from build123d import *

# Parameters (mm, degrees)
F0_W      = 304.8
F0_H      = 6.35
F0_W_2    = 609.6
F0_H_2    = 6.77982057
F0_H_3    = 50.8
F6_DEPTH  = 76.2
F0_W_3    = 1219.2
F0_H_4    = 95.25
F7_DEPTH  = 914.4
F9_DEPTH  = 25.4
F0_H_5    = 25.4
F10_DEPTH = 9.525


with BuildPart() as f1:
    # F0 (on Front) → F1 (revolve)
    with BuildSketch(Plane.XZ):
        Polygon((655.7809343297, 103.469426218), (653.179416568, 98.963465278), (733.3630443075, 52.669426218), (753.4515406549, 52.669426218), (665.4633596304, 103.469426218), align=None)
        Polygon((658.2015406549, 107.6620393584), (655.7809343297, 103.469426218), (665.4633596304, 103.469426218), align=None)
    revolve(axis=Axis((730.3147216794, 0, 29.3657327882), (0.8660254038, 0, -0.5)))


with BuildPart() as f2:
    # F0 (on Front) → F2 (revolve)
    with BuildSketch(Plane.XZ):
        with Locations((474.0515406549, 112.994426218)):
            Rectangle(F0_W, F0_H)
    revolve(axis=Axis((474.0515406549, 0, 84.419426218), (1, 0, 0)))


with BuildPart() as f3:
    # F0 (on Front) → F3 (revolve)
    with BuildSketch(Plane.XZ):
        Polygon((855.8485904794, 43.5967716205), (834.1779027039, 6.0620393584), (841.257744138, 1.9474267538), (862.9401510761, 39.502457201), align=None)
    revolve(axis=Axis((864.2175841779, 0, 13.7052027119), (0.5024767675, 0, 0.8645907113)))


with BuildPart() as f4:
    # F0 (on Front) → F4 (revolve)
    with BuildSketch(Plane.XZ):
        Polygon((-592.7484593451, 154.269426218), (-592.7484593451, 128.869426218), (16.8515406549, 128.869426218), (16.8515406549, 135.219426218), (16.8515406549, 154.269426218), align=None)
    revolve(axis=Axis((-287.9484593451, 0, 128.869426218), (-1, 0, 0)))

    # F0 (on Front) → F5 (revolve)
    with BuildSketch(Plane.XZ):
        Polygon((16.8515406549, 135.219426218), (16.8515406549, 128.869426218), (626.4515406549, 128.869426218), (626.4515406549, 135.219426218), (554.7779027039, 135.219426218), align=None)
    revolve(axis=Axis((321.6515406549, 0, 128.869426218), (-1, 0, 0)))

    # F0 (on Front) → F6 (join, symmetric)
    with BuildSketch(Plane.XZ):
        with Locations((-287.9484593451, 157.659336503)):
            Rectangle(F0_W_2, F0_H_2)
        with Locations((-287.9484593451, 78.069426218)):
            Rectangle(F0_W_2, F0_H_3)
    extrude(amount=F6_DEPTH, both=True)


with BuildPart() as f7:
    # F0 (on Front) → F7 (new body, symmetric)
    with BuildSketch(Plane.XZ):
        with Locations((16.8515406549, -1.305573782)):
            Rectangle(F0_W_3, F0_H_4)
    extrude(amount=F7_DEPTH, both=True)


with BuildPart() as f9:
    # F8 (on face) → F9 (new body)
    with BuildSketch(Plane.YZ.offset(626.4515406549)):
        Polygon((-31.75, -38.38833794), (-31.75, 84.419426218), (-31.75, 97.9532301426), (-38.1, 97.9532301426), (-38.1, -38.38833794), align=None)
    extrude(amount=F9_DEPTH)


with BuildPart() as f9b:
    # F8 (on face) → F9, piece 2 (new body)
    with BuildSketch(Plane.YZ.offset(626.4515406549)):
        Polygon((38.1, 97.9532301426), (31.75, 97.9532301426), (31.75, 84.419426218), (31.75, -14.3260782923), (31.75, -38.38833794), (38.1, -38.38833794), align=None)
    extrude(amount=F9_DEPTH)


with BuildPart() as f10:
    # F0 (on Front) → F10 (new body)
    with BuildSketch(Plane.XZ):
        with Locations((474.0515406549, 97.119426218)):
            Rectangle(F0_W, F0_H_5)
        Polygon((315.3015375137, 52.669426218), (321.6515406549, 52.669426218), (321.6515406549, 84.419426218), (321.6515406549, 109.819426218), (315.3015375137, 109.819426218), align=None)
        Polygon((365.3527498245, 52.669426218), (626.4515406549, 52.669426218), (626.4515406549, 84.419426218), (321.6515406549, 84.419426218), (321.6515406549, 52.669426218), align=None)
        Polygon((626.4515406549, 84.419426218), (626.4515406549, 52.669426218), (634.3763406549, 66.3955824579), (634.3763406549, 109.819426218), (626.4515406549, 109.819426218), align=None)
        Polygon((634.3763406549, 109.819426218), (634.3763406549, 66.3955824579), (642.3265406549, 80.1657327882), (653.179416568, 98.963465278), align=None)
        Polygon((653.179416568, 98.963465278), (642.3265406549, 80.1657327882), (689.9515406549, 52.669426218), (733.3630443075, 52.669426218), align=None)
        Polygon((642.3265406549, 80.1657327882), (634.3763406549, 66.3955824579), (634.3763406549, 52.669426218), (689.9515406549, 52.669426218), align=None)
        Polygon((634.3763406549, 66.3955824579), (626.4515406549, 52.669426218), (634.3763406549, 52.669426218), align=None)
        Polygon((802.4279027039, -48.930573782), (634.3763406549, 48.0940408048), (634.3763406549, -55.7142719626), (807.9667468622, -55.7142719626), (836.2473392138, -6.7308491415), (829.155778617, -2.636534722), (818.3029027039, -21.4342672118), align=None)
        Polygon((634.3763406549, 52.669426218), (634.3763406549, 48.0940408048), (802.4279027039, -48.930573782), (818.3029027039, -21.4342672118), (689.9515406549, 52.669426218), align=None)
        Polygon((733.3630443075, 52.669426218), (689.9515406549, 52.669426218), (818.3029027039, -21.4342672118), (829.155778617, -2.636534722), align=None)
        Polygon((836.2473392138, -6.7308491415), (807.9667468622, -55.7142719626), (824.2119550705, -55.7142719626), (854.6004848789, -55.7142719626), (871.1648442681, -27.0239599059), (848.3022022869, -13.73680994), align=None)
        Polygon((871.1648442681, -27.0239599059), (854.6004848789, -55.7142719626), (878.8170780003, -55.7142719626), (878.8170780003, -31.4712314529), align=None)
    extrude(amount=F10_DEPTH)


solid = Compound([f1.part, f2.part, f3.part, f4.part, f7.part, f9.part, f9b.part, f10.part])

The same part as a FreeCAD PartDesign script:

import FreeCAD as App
import Part
import Sketcher
Q = App.Units.Quantity


def add_polygon(sketch, points):
    """Adds a closed chain of lines whose ends are joined by coincident constraints."""
    first, n = sketch.GeometryCount, len(points)
    for a, b in zip(points, points[1:] + points[:1]):
        sketch.addGeometry(Part.LineSegment(App.Vector(*a, 0), App.Vector(*b, 0)), False)
    for i in range(n):
        sketch.addConstraint(Sketcher.Constraint("Coincident", first + i, 2, first + (i + 1) % n, 1))

doc = App.newDocument("Part")
params = doc.addObject("Spreadsheet::Sheet", "Params")
for row, (alias, value) in enumerate([
    ("sketch1_length", "4 in"),
    ("sketch1_width", "3.75 in"),
    ("revolution_angle", "360 deg"),
    ("sketch2_width", "12 in"),
    ("sketch2_height", "0.25 in"),
    ("revolution2_angle", "360 deg"),
    ("revolution3_angle", "360 deg"),
    ("sketch4_width", "24 in"),
    ("sketch4_height", "1 in"),
    ("revolution4_angle", "360 deg"),
    ("sketch5_width", "24 in"),
    ("sketch5_height", "0.25 in"),
    ("revolution5_angle", "360 deg"),
    ("sketch6_width", "24 in"),
    ("sketch6_height", "2 in"),
    ("pad1_length", "6 in"),
    ("sketch7_width", "48 in"),
    ("sketch7_height", "3.75 in"),
    ("pad2_length", "72 in"),
    ("sketch8_width", "0.25 in"),
    ("pad3_length", "1 in"),
    ("sketch9_width", "0.25 in"),
    ("pad4_length", "1 in"),
    ("sketch10_height", "2.25 in"),
    ("sketch10_width", "12.5620001 in"),
    ("pad5_length", "0.375 in"),
], start=1):
    params.set(f"A{row}", alias)
    params.set(f"B{row}", "=" + value)
    params.setAlias(f"B{row}", alias)

body = doc.addObject("PartDesign::Body", "Body")

# Sketch on XZ plane
sketch1 = doc.addObject("Sketcher::SketchObject", "Sketch")
body.addObject(sketch1)
sketch1.AttachmentSupport = (doc.XZ_Plane, [""])
sketch1.MapMode = "FlatFace"
add_polygon(sketch1, [(655.780934, 103.469426), (653.179417, 98.963465), (733.363044, 52.669426), (753.451541, 52.669426), (665.46336, 103.469426), (658.201541, 107.662039)])  # lines 0-5
sketch1.addGeometry(Part.LineSegment(App.Vector(642.326541, 80.165733, 0), App.Vector(737.576541, 25.17312, 0)), True)  # axis
sketch1.addConstraint(Sketcher.Constraint("Horizontal", 2))
sketch1.addConstraint(Sketcher.Constraint("Perpendicular", 0, 1))
sketch1.addConstraint(Sketcher.Constraint("Parallel", 1, 3))
sketch1.addConstraint(Sketcher.Constraint("Parallel", 3, 4))
sketch1.addConstraint(Sketcher.Constraint("Perpendicular", 4, 5))
sketch1.addConstraint(Sketcher.Constraint("Perpendicular", 5, 6))
sketch1.addConstraint(Sketcher.Constraint("Horizontal", 3, 2, 5, 2))
sketch1.addConstraint(Sketcher.Constraint("Distance", 3, Q("4 in")))
sketch1.addConstraint(Sketcher.Constraint("Angle", 0, Q("-120 deg")))
sketch1.addConstraint(Sketcher.Constraint("DistanceX", 4, 2, 2, 2, Q("3.75 in")))
sketch1.addConstraint(Sketcher.Constraint("DistanceX", 6, 1, 6, 2, Q("3.75 in")))
sketch1.addConstraint(Sketcher.Constraint("DistanceX", 6, 1, 4, 2, Q("0.625 in")))
sketch1.addConstraint(Sketcher.Constraint("Distance", 1, Q("3.6451999 in")))
sketch1.addConstraint(Sketcher.Constraint("DistanceX", -1, 1, 2, 2, 753.451541))
sketch1.addConstraint(Sketcher.Constraint("DistanceY", -1, 1, 4, 2, 107.662039))
sketch1.addConstraint(Sketcher.Constraint("DistanceY", -1, 1, 6, 2, 25.17312))
sketch1.setExpression("Constraints[13]", "Params.sketch1_length")
sketch1.setExpression("Constraints[16]", "Params.sketch1_width")
revolution = doc.addObject("PartDesign::Revolution", "Revolution")
body.addObject(revolution)
revolution.Profile = sketch1
revolution.ReferenceAxis = (sketch1, ["Axis0"])
revolution.setExpression("Angle", "Params.revolution_angle")
body2 = doc.addObject("PartDesign::Body", "Body001")

# Sketch on XZ plane
sketch2 = doc.addObject("Sketcher::SketchObject", "Sketch001")
body2.addObject(sketch2)
sketch2.AttachmentSupport = (doc.getObject("XZ_Plane001"), [""])
sketch2.MapMode = "FlatFace"
add_polygon(sketch2, [(321.651541, 116.169426), (321.651541, 109.819426), (626.451541, 109.819426), (626.451541, 116.169426)])  # lines 0-3
sketch2.addGeometry(Part.LineSegment(App.Vector(321.651541, 84.419426, 0), App.Vector(626.451541, 84.419426, 0)), True)  # axis
sketch2.addConstraint(Sketcher.Constraint("Vertical", 0))
sketch2.addConstraint(Sketcher.Constraint("Horizontal", 1))
sketch2.addConstraint(Sketcher.Constraint("Vertical", 2))
sketch2.addConstraint(Sketcher.Constraint("Horizontal", 3))
sketch2.addConstraint(Sketcher.Constraint("Horizontal", 4))
sketch2.addConstraint(Sketcher.Constraint("Vertical", 3, 2, 4, 1))
sketch2.addConstraint(Sketcher.Constraint("Vertical", 2, 2, 4, 2))
sketch2.addConstraint(Sketcher.Constraint("DistanceX", 1, 1, 1, 2, Q("12 in")))
sketch2.addConstraint(Sketcher.Constraint("DistanceY", 4, 1, 0, 2, Q("1 in")))
sketch2.addConstraint(Sketcher.Constraint("DistanceY", 0, 2, 0, 1, Q("0.25 in")))
sketch2.addConstraint(Sketcher.Constraint("DistanceX", -1, 1, 0, 2, 321.651541))
sketch2.addConstraint(Sketcher.Constraint("DistanceY", -1, 1, 0, 2, 109.819426))
sketch2.setExpression("Constraints[11]", "Params.sketch2_width")
sketch2.setExpression("Constraints[13]", "Params.sketch2_height")
revolution2 = doc.addObject("PartDesign::Revolution", "Revolution001")
body2.addObject(revolution2)
revolution2.Profile = sketch2
revolution2.ReferenceAxis = (sketch2, ["Axis0"])
revolution2.setExpression("Angle", "Params.revolution2_angle")
body3 = doc.addObject("PartDesign::Body", "Body002")

# Sketch on XZ plane
sketch3 = doc.addObject("Sketcher::SketchObject", "Sketch002")
body3.addObject(sketch3)
sketch3.AttachmentSupport = (doc.getObject("XZ_Plane002"), [""])
sketch3.MapMode = "FlatFace"
add_polygon(sketch3, [(855.84859, 43.596772), (834.177903, 6.062039), (841.257744, 1.947427), (862.940151, 39.502457)])  # lines 0-3
sketch3.addGeometry(Part.LineSegment(App.Vector(853.312607, -5.058534, 0), App.Vector(875.102329, 32.434128, 0)), True)  # axis
sketch3.addConstraint(Sketcher.Constraint("Parallel", 0, 2))
sketch3.addConstraint(Sketcher.Constraint("Perpendicular", 2, 3))
sketch3.addConstraint(Sketcher.Constraint("Perpendicular", 1, 4))
sketch3.addConstraint(Sketcher.Constraint("Angle", 0, Q("-120 deg")))
sketch3.addConstraint(Sketcher.Constraint("DistanceY", 1, 2, 4, 2, 30.486701))
sketch3.addConstraint(Sketcher.Constraint("Distance", 3, 8.188629))
sketch3.addConstraint(Sketcher.Constraint("DistanceY", -1, 1, 0, 2, 6.062039))
sketch3.addConstraint(Sketcher.Constraint("DistanceX", -1, 1, 2, 2, 862.940151))
sketch3.addConstraint(Sketcher.Constraint("DistanceY", -1, 1, 3, 2, 43.596772))
sketch3.addConstraint(Sketcher.Constraint("DistanceX", -1, 1, 4, 2, 875.102329))
sketch3.addConstraint(Sketcher.Constraint("DistanceX", 0, 2, 1, 2, 7.079841))
sketch3.addConstraint(Sketcher.Constraint("DistanceY", 4, 1, 1, 2, 7.005961))
revolution3 = doc.addObject("PartDesign::Revolution", "Revolution002")
body3.addObject(revolution3)
revolution3.Profile = sketch3
revolution3.ReferenceAxis = (sketch3, ["Axis0"])
revolution3.setExpression("Angle", "Params.revolution3_angle")
body4 = doc.addObject("PartDesign::Body", "Body003")
body4.AllowCompound = True

# Sketch on XZ plane
sketch4 = doc.addObject("Sketcher::SketchObject", "Sketch003")
body4.addObject(sketch4)
sketch4.AttachmentSupport = (doc.getObject("XZ_Plane003"), [""])
sketch4.MapMode = "FlatFace"
add_polygon(sketch4, [(-592.748459, 154.269426), (-592.748459, 128.869426), (16.851541, 128.869426), (16.851541, 154.269426)])  # lines 0-3
sketch4.addGeometry(Part.LineSegment(App.Vector(16.851541, 128.869426, 0), App.Vector(-592.748459, 128.869426, 0)), True)  # axis
sketch4.addConstraint(Sketcher.Constraint("Vertical", 0))
sketch4.addConstraint(Sketcher.Constraint("Horizontal", 1))
sketch4.addConstraint(Sketcher.Constraint("Vertical", 2))
sketch4.addConstraint(Sketcher.Constraint("Horizontal", 3))
sketch4.addConstraint(Sketcher.Constraint("Horizontal", 4))
sketch4.addConstraint(Sketcher.Constraint("Coincident", 4, 1, 1, 2))
sketch4.addConstraint(Sketcher.Constraint("Vertical", 3, 2, 4, 2))
sketch4.addConstraint(Sketcher.Constraint("DistanceX", 1, 1, 1, 2, Q("24 in")))
sketch4.addConstraint(Sketcher.Constraint("DistanceY", 0, 2, 0, 1, Q("1 in")))
sketch4.addConstraint(Sketcher.Constraint("DistanceX", 0, 2, -1, 1, 592.748459))
sketch4.addConstraint(Sketcher.Constraint("DistanceY", -1, 1, 0, 2, 128.869426))
sketch4.setExpression("Constraints[11]", "Params.sketch4_width")
sketch4.setExpression("Constraints[12]", "Params.sketch4_height")
revolution4 = doc.addObject("PartDesign::Revolution", "Revolution003")
body4.addObject(revolution4)
revolution4.Profile = sketch4
revolution4.ReferenceAxis = (sketch4, ["Axis0"])
revolution4.setExpression("Angle", "Params.revolution4_angle")

# Sketch on XZ plane
sketch5 = doc.addObject("Sketcher::SketchObject", "Sketch004")
body4.addObject(sketch5)
sketch5.AttachmentSupport = (doc.getObject("XZ_Plane003"), [""])
sketch5.MapMode = "FlatFace"
add_polygon(sketch5, [(16.851541, 135.219426), (16.851541, 128.869426), (626.451541, 128.869426), (626.451541, 135.219426)])  # lines 0-3
sketch5.addGeometry(Part.LineSegment(App.Vector(626.451541, 128.869426, 0), App.Vector(16.851541, 128.869426, 0)), True)  # axis
sketch5.addConstraint(Sketcher.Constraint("Vertical", 0))
sketch5.addConstraint(Sketcher.Constraint("Horizontal", 1))
sketch5.addConstraint(Sketcher.Constraint("Vertical", 2))
sketch5.addConstraint(Sketcher.Constraint("Horizontal", 3))
sketch5.addConstraint(Sketcher.Constraint("Horizontal", 4))
sketch5.addConstraint(Sketcher.Constraint("Coincident", 4, 1, 1, 2))
sketch5.addConstraint(Sketcher.Constraint("Vertical", 3, 2, 4, 2))
sketch5.addConstraint(Sketcher.Constraint("DistanceX", 1, 1, 1, 2, Q("24 in")))
sketch5.addConstraint(Sketcher.Constraint("DistanceY", 0, 2, 0, 1, Q("0.25 in")))
sketch5.addConstraint(Sketcher.Constraint("DistanceX", -1, 1, 0, 2, 16.851541))
sketch5.addConstraint(Sketcher.Constraint("DistanceY", -1, 1, 0, 2, 128.869426))
sketch5.setExpression("Constraints[11]", "Params.sketch5_width")
sketch5.setExpression("Constraints[12]", "Params.sketch5_height")
revolution5 = doc.addObject("PartDesign::Revolution", "Revolution004")
body4.addObject(revolution5)
revolution5.Profile = sketch5
revolution5.ReferenceAxis = (sketch5, ["Axis0"])
revolution5.setExpression("Angle", "Params.revolution5_angle")

# Sketch on XZ plane
sketch6 = doc.addObject("Sketcher::SketchObject", "Sketch005")
body4.addObject(sketch6)
sketch6.AttachmentSupport = (doc.getObject("XZ_Plane003"), [""])
sketch6.MapMode = "FlatFace"
add_polygon(sketch6, [(-592.748459, 161.049247), (-592.748459, 154.269426), (16.851541, 154.269426), (16.851541, 161.049247)])  # lines 0-3
add_polygon(sketch6, [(-592.748459, 103.469426), (-592.748459, 52.669426), (16.851541, 52.669426), (16.851541, 103.469426)])  # lines 4-7
sketch6.addConstraint(Sketcher.Constraint("Vertical", 0))
sketch6.addConstraint(Sketcher.Constraint("Horizontal", 1))
sketch6.addConstraint(Sketcher.Constraint("Vertical", 2))
sketch6.addConstraint(Sketcher.Constraint("Horizontal", 3))
sketch6.addConstraint(Sketcher.Constraint("Vertical", 4))
sketch6.addConstraint(Sketcher.Constraint("Horizontal", 5))
sketch6.addConstraint(Sketcher.Constraint("Vertical", 6))
sketch6.addConstraint(Sketcher.Constraint("Horizontal", 7))
sketch6.addConstraint(Sketcher.Constraint("Vertical", 3, 2, 4, 2))
sketch6.addConstraint(Sketcher.Constraint("Vertical", 2, 2, 5, 2))
sketch6.addConstraint(Sketcher.Constraint("DistanceX", 1, 1, 1, 2, Q("24 in")))
sketch6.addConstraint(Sketcher.Constraint("DistanceY", 4, 2, 4, 1, Q("2 in")))
sketch6.addConstraint(Sketcher.Constraint("DistanceY", 4, 2, 0, 2, Q("4 in")))
sketch6.addConstraint(Sketcher.Constraint("DistanceY", 0, 2, 0, 1, 6.779821))
sketch6.addConstraint(Sketcher.Constraint("DistanceX", 0, 2, -1, 1, 592.748459))
sketch6.addConstraint(Sketcher.Constraint("DistanceY", -1, 1, 0, 2, 154.269426))
sketch6.setExpression("Constraints[18]", "Params.sketch6_width")
sketch6.setExpression("Constraints[19]", "Params.sketch6_height")
pad1 = doc.addObject("PartDesign::Pad", "Pad")
body4.addObject(pad1)
pad1.Profile = sketch6
pad1.setExpression("Length", "Params.pad1_length")
pad1.Midplane = True
body5 = doc.addObject("PartDesign::Body", "Body004")

# Sketch on XZ plane
sketch7 = doc.addObject("Sketcher::SketchObject", "Sketch006")
body5.addObject(sketch7)
sketch7.AttachmentSupport = (doc.getObject("XZ_Plane004"), [""])
sketch7.MapMode = "FlatFace"
add_polygon(sketch7, [(-592.748459, 46.319426), (-592.748459, -48.930574), (626.451541, -48.930574), (626.451541, 46.319426)])  # lines 0-3
sketch7.addConstraint(Sketcher.Constraint("Vertical", 0))
sketch7.addConstraint(Sketcher.Constraint("Horizontal", 1))
sketch7.addConstraint(Sketcher.Constraint("Vertical", 2))
sketch7.addConstraint(Sketcher.Constraint("Horizontal", 3))
sketch7.addConstraint(Sketcher.Constraint("DistanceX", 1, 1, 1, 2, Q("48 in")))
sketch7.addConstraint(Sketcher.Constraint("DistanceY", 0, 2, 0, 1, Q("3.75 in")))
sketch7.addConstraint(Sketcher.Constraint("DistanceX", 0, 2, -1, 1, 592.748459))
sketch7.addConstraint(Sketcher.Constraint("DistanceY", 0, 2, -1, 1, 48.930574))
sketch7.setExpression("Constraints[8]", "Params.sketch7_width")
sketch7.setExpression("Constraints[9]", "Params.sketch7_height")
pad2 = doc.addObject("PartDesign::Pad", "Pad001")
body5.addObject(pad2)
pad2.Profile = sketch7
pad2.setExpression("Length", "Params.pad2_length")
pad2.Midplane = True
body6 = doc.addObject("PartDesign::Body", "Body005")

# Sketch on YZ plane
sketch8 = doc.addObject("Sketcher::SketchObject", "Sketch007")
body6.addObject(sketch8)
sketch8.AttachmentSupport = (doc.getObject("YZ_Plane005"), [""])
sketch8.MapMode = "FlatFace"
sketch8.AttachmentOffset = App.Placement(App.Vector(0, 0, 626.451541), App.Rotation())
add_polygon(sketch8, [(-31.75, -38.388338), (-31.75, 97.95323), (-38.1, 97.95323), (-38.1, -38.388338)])  # lines 0-3
sketch8.addConstraint(Sketcher.Constraint("Vertical", 0))
sketch8.addConstraint(Sketcher.Constraint("Horizontal", 1))
sketch8.addConstraint(Sketcher.Constraint("Vertical", 2))
sketch8.addConstraint(Sketcher.Constraint("Horizontal", 3))
sketch8.addConstraint(Sketcher.Constraint("DistanceX", 1, 2, 1, 1, Q("0.25 in")))
sketch8.addConstraint(Sketcher.Constraint("DistanceX", 1, 2, -1, 1, Q("1.5 in")))
sketch8.addConstraint(Sketcher.Constraint("DistanceY", 0, 1, 0, 2, 136.341568))
sketch8.addConstraint(Sketcher.Constraint("DistanceY", -1, 1, 0, 2, 97.95323))
sketch8.setExpression("Constraints[8]", "Params.sketch8_width")
pad3 = doc.addObject("PartDesign::Pad", "Pad002")
body6.addObject(pad3)
pad3.Profile = sketch8
pad3.setExpression("Length", "Params.pad3_length")
body7 = doc.addObject("PartDesign::Body", "Body006")

# Sketch on YZ plane
sketch9 = doc.addObject("Sketcher::SketchObject", "Sketch008")
body7.addObject(sketch9)
sketch9.AttachmentSupport = (doc.getObject("YZ_Plane006"), [""])
sketch9.MapMode = "FlatFace"
sketch9.AttachmentOffset = App.Placement(App.Vector(0, 0, 626.451541), App.Rotation())
add_polygon(sketch9, [(38.1, 97.95323), (31.75, 97.95323), (31.75, -38.388338), (38.1, -38.388338)])  # lines 0-3
sketch9.addConstraint(Sketcher.Constraint("Horizontal", 0))
sketch9.addConstraint(Sketcher.Constraint("Vertical", 1))
sketch9.addConstraint(Sketcher.Constraint("Horizontal", 2))
sketch9.addConstraint(Sketcher.Constraint("Vertical", 3))
sketch9.addConstraint(Sketcher.Constraint("DistanceX", 0, 2, 0, 1, Q("0.25 in")))
sketch9.addConstraint(Sketcher.Constraint("DistanceX", -1, 1, 2, 2, Q("1.5 in")))
sketch9.addConstraint(Sketcher.Constraint("DistanceY", 1, 2, 1, 1, 136.341568))
sketch9.addConstraint(Sketcher.Constraint("DistanceY", -1, 1, 0, 2, 97.95323))
sketch9.setExpression("Constraints[8]", "Params.sketch9_width")
pad4 = doc.addObject("PartDesign::Pad", "Pad003")
body7.addObject(pad4)
pad4.Profile = sketch9
pad4.setExpression("Length", "Params.pad4_length")
body8 = doc.addObject("PartDesign::Body", "Body007")

# Sketch on XZ plane
sketch10 = doc.addObject("Sketcher::SketchObject", "Sketch009")
body8.addObject(sketch10)
sketch10.AttachmentSupport = (doc.getObject("XZ_Plane007"), [""])
sketch10.MapMode = "FlatFace"
add_polygon(sketch10, [(315.301538, 109.819426), (315.301538, 52.669426), (634.376341, 52.669426), (634.376341, -55.714272), (878.817078, -55.714272), (878.817078, -31.471231), (871.164844, -27.02396), (836.247339, -6.730849), (829.155779, -2.636535), (634.376341, 109.819426)])  # lines 0-9
sketch10.addConstraint(Sketcher.Constraint("Vertical", 0))
sketch10.addConstraint(Sketcher.Constraint("Horizontal", 1))
sketch10.addConstraint(Sketcher.Constraint("Vertical", 2))
sketch10.addConstraint(Sketcher.Constraint("Horizontal", 3))
sketch10.addConstraint(Sketcher.Constraint("Vertical", 4))
sketch10.addConstraint(Sketcher.Constraint("Horizontal", 9))
sketch10.addConstraint(Sketcher.Constraint("Parallel", 5, 6))
sketch10.addConstraint(Sketcher.Constraint("Parallel", 7, 8))
sketch10.addConstraint(Sketcher.Constraint("Vertical", 2, 2, 8, 2))
sketch10.addConstraint(Sketcher.Constraint("Angle", 7, Q("150 deg")))
sketch10.addConstraint(Sketcher.Constraint("DistanceY", 0, 2, 0, 1, Q("2.25 in")))
sketch10.addConstraint(Sketcher.Constraint("DistanceX", 1, 1, 1, 2, Q("12.5620001 in")))
sketch10.addConstraint(Sketcher.Constraint("Distance", 8, Q("8.8548001 in")))
sketch10.addConstraint(Sketcher.Constraint("DistanceY", 2, 2, 2, 1, 108.383698))
sketch10.addConstraint(Sketcher.Constraint("Distance", 5, 8.850701))
sketch10.addConstraint(Sketcher.Constraint("DistanceY", 4, 1, 4, 2, 24.243041))
sketch10.addConstraint(Sketcher.Constraint("DistanceX", 2, 2, 6, 2, 201.870999))
sketch10.addConstraint(Sketcher.Constraint("DistanceX", 7, 2, 4, 2, 49.661299))
sketch10.addConstraint(Sketcher.Constraint("DistanceX", -1, 1, 1, 2, 634.376341))
sketch10.addConstraint(Sketcher.Constraint("DistanceY", 2, 2, -1, 1, 55.714272))
sketch10.setExpression("Constraints[20]", "Params.sketch10_height")
sketch10.setExpression("Constraints[21]", "Params.sketch10_width")
pad5 = doc.addObject("PartDesign::Pad", "Pad004")
body8.addObject(pad5)
pad5.Profile = sketch10
pad5.setExpression("Length", "Params.pad5_length")

doc.recompute()
